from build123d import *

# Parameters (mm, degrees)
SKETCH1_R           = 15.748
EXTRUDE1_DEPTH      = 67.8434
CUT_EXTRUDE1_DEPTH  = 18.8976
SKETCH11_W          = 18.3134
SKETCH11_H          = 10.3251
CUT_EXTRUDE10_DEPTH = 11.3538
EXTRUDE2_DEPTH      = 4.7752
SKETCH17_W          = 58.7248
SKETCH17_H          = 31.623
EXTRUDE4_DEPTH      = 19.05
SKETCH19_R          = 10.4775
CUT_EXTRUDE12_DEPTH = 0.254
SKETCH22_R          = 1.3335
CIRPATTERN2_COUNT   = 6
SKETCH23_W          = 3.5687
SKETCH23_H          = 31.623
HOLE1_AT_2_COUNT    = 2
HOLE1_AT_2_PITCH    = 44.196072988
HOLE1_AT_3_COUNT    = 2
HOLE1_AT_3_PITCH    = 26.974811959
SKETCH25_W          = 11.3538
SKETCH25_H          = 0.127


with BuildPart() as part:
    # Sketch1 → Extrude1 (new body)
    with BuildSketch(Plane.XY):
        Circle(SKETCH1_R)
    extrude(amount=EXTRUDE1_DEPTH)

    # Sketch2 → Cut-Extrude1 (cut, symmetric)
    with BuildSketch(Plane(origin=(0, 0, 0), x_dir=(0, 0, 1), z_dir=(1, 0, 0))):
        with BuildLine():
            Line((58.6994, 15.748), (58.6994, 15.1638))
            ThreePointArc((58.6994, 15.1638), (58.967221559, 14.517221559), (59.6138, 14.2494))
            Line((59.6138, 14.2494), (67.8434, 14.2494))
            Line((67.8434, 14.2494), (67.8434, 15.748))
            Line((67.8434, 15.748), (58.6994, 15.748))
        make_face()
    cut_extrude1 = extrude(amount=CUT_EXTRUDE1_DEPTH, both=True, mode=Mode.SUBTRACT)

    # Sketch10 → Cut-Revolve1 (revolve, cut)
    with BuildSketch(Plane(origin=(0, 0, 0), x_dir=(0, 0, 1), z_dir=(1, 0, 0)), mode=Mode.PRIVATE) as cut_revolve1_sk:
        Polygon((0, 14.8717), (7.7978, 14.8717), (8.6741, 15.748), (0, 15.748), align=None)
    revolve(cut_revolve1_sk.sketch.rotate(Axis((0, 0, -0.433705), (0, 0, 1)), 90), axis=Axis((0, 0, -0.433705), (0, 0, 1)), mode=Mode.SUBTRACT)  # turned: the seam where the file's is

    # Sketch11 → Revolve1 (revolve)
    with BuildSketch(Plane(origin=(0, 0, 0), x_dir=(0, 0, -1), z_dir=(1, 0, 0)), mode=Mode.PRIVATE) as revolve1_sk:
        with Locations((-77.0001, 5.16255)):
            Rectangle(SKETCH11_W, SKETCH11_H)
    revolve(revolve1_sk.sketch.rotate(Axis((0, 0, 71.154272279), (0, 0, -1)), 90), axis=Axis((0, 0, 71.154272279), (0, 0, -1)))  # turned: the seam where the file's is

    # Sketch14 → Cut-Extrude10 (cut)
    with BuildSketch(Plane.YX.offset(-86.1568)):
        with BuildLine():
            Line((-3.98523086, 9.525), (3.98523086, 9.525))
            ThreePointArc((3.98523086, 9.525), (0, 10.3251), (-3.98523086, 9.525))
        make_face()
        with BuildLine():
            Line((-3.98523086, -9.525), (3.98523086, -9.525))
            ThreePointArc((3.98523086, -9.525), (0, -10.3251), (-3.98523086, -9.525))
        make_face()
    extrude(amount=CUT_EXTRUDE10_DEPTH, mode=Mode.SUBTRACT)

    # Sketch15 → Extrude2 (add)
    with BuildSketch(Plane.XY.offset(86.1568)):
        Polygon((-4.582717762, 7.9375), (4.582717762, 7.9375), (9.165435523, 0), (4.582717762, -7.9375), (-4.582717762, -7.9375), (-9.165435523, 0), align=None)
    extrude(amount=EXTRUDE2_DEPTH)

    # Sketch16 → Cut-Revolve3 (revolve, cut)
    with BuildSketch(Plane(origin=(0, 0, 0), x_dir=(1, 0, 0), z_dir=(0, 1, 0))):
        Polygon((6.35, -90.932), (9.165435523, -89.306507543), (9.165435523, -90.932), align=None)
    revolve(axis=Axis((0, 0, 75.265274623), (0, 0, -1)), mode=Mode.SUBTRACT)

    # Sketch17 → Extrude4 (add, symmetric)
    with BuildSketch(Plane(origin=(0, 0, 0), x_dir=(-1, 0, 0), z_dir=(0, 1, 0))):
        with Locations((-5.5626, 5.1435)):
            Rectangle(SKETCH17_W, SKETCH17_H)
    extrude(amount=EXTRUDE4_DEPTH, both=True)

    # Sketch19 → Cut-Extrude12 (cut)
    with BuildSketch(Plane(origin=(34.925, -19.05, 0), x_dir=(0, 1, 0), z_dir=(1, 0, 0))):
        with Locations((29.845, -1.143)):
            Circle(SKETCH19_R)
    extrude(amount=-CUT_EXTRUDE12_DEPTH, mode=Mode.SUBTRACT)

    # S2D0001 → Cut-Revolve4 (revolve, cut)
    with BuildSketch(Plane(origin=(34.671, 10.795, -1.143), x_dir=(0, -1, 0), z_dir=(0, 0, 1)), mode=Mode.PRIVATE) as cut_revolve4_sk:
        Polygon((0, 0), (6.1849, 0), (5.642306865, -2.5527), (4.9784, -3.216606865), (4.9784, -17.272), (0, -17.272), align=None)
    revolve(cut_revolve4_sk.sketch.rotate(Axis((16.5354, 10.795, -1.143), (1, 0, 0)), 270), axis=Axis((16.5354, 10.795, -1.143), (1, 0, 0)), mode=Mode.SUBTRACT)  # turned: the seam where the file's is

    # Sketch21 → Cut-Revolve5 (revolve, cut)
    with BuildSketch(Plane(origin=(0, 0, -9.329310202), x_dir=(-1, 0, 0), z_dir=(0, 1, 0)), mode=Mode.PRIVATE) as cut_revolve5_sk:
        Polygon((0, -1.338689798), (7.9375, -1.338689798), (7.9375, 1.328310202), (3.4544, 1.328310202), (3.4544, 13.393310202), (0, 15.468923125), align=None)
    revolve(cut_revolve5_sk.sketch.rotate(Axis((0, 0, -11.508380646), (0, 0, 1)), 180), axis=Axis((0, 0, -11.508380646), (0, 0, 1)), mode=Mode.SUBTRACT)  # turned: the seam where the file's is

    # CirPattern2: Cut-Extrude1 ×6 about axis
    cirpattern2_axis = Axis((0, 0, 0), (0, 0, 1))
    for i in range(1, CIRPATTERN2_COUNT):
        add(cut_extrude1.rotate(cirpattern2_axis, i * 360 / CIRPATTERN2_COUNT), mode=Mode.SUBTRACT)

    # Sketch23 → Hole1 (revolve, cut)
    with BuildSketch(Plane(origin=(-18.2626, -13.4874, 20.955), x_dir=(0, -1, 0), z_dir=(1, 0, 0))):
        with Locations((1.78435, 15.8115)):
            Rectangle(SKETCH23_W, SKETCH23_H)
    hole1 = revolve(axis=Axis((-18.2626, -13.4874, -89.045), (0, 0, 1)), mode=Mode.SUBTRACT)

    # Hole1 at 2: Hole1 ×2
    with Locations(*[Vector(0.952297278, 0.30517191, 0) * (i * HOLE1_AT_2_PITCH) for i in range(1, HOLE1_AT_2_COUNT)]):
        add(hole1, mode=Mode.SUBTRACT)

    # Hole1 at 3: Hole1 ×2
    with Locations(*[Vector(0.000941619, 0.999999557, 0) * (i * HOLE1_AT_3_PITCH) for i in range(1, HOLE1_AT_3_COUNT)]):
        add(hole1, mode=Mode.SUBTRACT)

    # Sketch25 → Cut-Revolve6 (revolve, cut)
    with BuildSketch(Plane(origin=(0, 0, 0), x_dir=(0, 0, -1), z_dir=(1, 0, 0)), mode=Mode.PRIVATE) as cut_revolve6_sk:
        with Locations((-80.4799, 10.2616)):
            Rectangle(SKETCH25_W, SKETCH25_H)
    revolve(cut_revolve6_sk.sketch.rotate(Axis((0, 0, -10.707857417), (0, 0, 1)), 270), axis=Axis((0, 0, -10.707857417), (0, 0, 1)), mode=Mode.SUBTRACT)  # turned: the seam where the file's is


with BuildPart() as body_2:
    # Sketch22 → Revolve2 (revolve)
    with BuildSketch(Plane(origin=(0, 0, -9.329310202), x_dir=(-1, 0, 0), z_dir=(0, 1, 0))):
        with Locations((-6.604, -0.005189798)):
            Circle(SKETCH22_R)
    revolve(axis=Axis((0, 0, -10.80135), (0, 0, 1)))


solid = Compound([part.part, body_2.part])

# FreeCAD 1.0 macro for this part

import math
import FreeCAD as App
import Part
import Sketcher

V = App.Vector
Q = App.Units.Quantity

doc = App.newDocument("Part")
body = doc.addObject("PartDesign::Body", "Body")

sketch1 = body.newObject("Sketcher::SketchObject", "Sketch")
sketch1.AttachmentSupport = (doc.getObject("XY_Plane"), [""])
sketch1.MapMode = "FlatFace"
sketch1.addGeometry(Part.Circle(V(0, 0, 0), V(0, 0, 1), 16), False)
sketch1.addConstraint(Sketcher.Constraint("Coincident", 0, 3, -1, 1))
sketch1.addConstraint(Sketcher.Constraint("Diameter", 0, Q("1.24 in")))
pad1 = body.newObject("PartDesign::Pad", "Pad")
pad1.Profile = sketch1
pad1.Length = Q("2.671 in")

sketch2 = body.newObject("Sketcher::SketchObject", "Sketch001")
sketch2.AttachmentSupport = (doc.getObject("YZ_Plane"), [""])
sketch2.MapMode = "FlatFace"
sketch2.addGeometry(Part.LineSegment(V(-15.7, 58.7, 0), V(-15.2, 58.7, 0)), False)
sketch2.addGeometry(Part.ArcOfCircle(Part.Circle(V(-15.2, 59.6, 0), V(0, 0, 1), 0.9), math.radians(-90), math.radians(0)), False)
sketch2.addGeometry(Part.LineSegment(V(-14.2, 59.6, 0), V(-14.2, 67.8, 0)), False)
sketch2.addGeometry(Part.LineSegment(V(-14.2, 67.8, 0), V(-15.7, 67.8, 0)), False)
sketch2.addGeometry(Part.LineSegment(V(-15.7, 67.8, 0), V(-15.7, 58.7, 0)), False)
sketch2.addConstraint(Sketcher.Constraint("Tangent", 0, 2, 1, 1))
sketch2.addConstraint(Sketcher.Constraint("Tangent", 1, 2, 2, 1))
sketch2.addConstraint(Sketcher.Constraint("Coincident", 2, 2, 3, 1))
sketch2.addConstraint(Sketcher.Constraint("Coincident", 3, 2, 4, 1))
sketch2.addConstraint(Sketcher.Constraint("Coincident", 4, 2, 0, 1))
sketch2.addConstraint(Sketcher.Constraint("Horizontal", 0))
sketch2.addConstraint(Sketcher.Constraint("Vertical", 2))
sketch2.addConstraint(Sketcher.Constraint("Horizontal", 3))
sketch2.addConstraint(Sketcher.Constraint("Vertical", 4))
sketch2.addConstraint(Sketcher.Constraint("Radius", 1, Q("0.036 in")))
sketch2.addConstraint(Sketcher.Constraint("DistanceY", 4, 2, 4, 1, Q("0.36 in")))
sketch2.addConstraint(Sketcher.Constraint("DistanceX", 0, 1, 0, 2, Q("0.023 in")))
sketch2.addConstraint(Sketcher.Constraint("DistanceX", 3, 2, -1, 1, Q("0.62 in")))
sketch2.addConstraint(Sketcher.Constraint("DistanceY", -1, 1, 1, 3, Q("2.347 in")))
pocket1 = body.newObject("PartDesign::Pocket", "Pocket")
pocket1.Profile = sketch2
pocket1.Length = Q("1.488 in")
pocket1.Midplane = True

sketch3 = body.newObject("Sketcher::SketchObject", "Sketch002")
sketch3.AttachmentSupport = (doc.getObject("YZ_Plane"), [""])
sketch3.MapMode = "FlatFace"
sketch3.addGeometry(Part.LineSegment(V(-14.9, 0, 0), V(-14.9, 7.8, 0)), False)
sketch3.addGeometry(Part.LineSegment(V(-14.9, 7.8, 0), V(-15.7, 8.7, 0)), False)
sketch3.addGeometry(Part.LineSegment(V(-15.7, 8.7, 0), V(-15.7, 0, 0)), False)
sketch3.addGeometry(Part.LineSegment(V(-15.7, 0, 0), V(-14.9, 0, 0)), False)
sketch3.addConstraint(Sketcher.Constraint("Coincident", 0, 2, 1, 1))
sketch3.addConstraint(Sketcher.Constraint("Coincident", 1, 2, 2, 1))
sketch3.addConstraint(Sketcher.Constraint("Coincident", 2, 2, 3, 1))
sketch3.addConstraint(Sketcher.Constraint("Coincident", 3, 2, 0, 1))
sketch3.addConstraint(Sketcher.Constraint("Vertical", 0))
sketch3.addConstraint(Sketcher.Constraint("Vertical", 2))
sketch3.addConstraint(Sketcher.Constraint("Horizontal", 3))
sketch3.addConstraint(Sketcher.Constraint("PointOnObject", 2, 2, -1))
sketch3.addConstraint(Sketcher.Constraint("Angle", 1, Q("135 deg")))
sketch3.addConstraint(Sketcher.Constraint("DistanceY", 0, 1, 0, 2, Q("0.307 in")))
sketch3.addConstraint(Sketcher.Constraint("DistanceX", 1, 2, -1, 1, Q("0.62 in")))
sketch3.addConstraint(Sketcher.Constraint("DistanceX", 3, 1, 3, 2, Q("0.0345 in")))
groove = body.newObject("PartDesign::Groove", "Groove")
groove.Profile = sketch3
groove.ReferenceAxis = (sketch3, ["V_Axis"])
groove.Angle = 360

sketch4 = body.newObject("Sketcher::SketchObject", "Sketch003")
sketch4.AttachmentSupport = (doc.getObject("YZ_Plane"), [""])
sketch4.MapMode = "FlatFace"
sketch4.addGeometry(Part.LineSegment(V(10, 86, 0), V(0, 86, 0)), False)
sketch4.addGeometry(Part.LineSegment(V(0, 86, 0), V(0, 68, 0)), False)
sketch4.addGeometry(Part.LineSegment(V(0, 68, 0), V(10, 68, 0)), False)
sketch4.addGeometry(Part.LineSegment(V(10, 68, 0), V(10, 86, 0)), False)
sketch4.addConstraint(Sketcher.Constraint("Coincident", 0, 2, 1, 1))
sketch4.addConstraint(Sketcher.Constraint("Coincident", 1, 2, 2, 1))
sketch4.addConstraint(Sketcher.Constraint("Coincident", 2, 2, 3, 1))
sketch4.addConstraint(Sketcher.Constraint("Coincident", 3, 2, 0, 1))
sketch4.addConstraint(Sketcher.Constraint("Horizontal", 0))
sketch4.addConstraint(Sketcher.Constraint("Vertical", 1))
sketch4.addConstraint(Sketcher.Constraint("Horizontal", 2))
sketch4.addConstraint(Sketcher.Constraint("Vertical", 3))
sketch4.addConstraint(Sketcher.Constraint("PointOnObject", 0, 2, -2))
sketch4.addConstraint(Sketcher.Constraint("DistanceY", 1, 2, 1, 1, Q("0.721 in")))
sketch4.addConstraint(Sketcher.Constraint("DistanceX", 0, 2, 0, 1, Q("0.4065 in")))
sketch4.addConstraint(Sketcher.Constraint("DistanceY", -1, 1, 0, 2, Q("3.392 in")))
revolution = body.newObject("PartDesign::Revolution", "Revolution")
revolution.Profile = sketch4
revolution.ReferenceAxis = (sketch4, ["V_Axis"])
revolution.Angle = 360

sketch5 = body.newObject("Sketcher::SketchObject", "Sketch004")
sketch5.AttachmentSupport = (doc.getObject("XY_Plane"), [""])
sketch5.MapMode = "FlatFace"
sketch5.AttachmentOffset = App.Placement(V(0, 0, 3.392 * 25.4), App.Rotation())
sketch5.addGeometry(Part.LineSegment(V(10, -4, 0), V(10, 4, 0)), False)
sketch5.addGeometry(Part.ArcOfCircle(Part.Circle(V(0, 0, 0), V(0, 0, 1), 10), math.radians(-23), math.radians(23)), False)
sketch5.addGeometry(Part.LineSegment(V(-10, 4, 0), V(-10, -4, 0)), False)
sketch5.addGeometry(Part.ArcOfCircle(Part.Circle(V(0, 0, 0), V(0, 0, 1), 10), math.radians(157), math.radians(203)), False)
sketch5.addConstraint(Sketcher.Constraint("Coincident", 0, 1, 1, 1))
sketch5.addConstraint(Sketcher.Constraint("Coincident", 1, 2, 0, 2))
sketch5.addConstraint(Sketcher.Constraint("Coincident", 2, 1, 3, 1))
sketch5.addConstraint(Sketcher.Constraint("Coincident", 3, 2, 2, 2))
sketch5.addConstraint(Sketcher.Constraint("Vertical", 0))
sketch5.addConstraint(Sketcher.Constraint("Vertical", 2))
sketch5.addConstraint(Sketcher.Constraint("Coincident", 1, 3, -1, 1))
sketch5.addConstraint(Sketcher.Constraint("Coincident", 3, 3, -1, 1))
sketch5.addConstraint(Sketcher.Constraint("Equal", 1, 3))
sketch5.addConstraint(Sketcher.Constraint("Horizontal", 1, 2, 2, 1))
sketch5.addConstraint(Sketcher.Constraint("Radius", 1, Q("0.4065 in")))
sketch5.addConstraint(Sketcher.Constraint("DistanceX", 2, 1, 1, 2, Q("0.75 in")))
pocket2 = body.newObject("PartDesign::Pocket", "Pocket001")
pocket2.Profile = sketch5
pocket2.Length = Q("0.447 in")

sketch6 = body.newObject("Sketcher::SketchObject", "Sketch005")
sketch6.AttachmentSupport = (doc.getObject("XY_Plane"), [""])
sketch6.MapMode = "FlatFace"
sketch6.AttachmentOffset = App.Placement(V(0, 0, 3.392 * 25.4), App.Rotation())
sketch6.addGeometry(Part.LineSegment(V(5, 8, 0), V(-5, 8, 0)), False)
sketch6.addGeometry(Part.LineSegment(V(-5, 8, 0), V(-9, 0, 0)), False)
sketch6.addGeometry(Part.LineSegment(V(-9, 0, 0), V(-5, -8, 0)), False)
sketch6.addGeometry(Part.LineSegment(V(-5, -8, 0), V(5, -8, 0)), False)
sketch6.addGeometry(Part.LineSegment(V(5, -8, 0), V(9, 0, 0)), False)
sketch6.addGeometry(Part.LineSegment(V(9, 0, 0), V(5, 8, 0)), False)
sketch6.addConstraint(Sketcher.Constraint("Coincident", 0, 2, 1, 1))
sketch6.addConstraint(Sketcher.Constraint("Coincident", 1, 2, 2, 1))
sketch6.addConstraint(Sketcher.Constraint("Coincident", 2, 2, 3, 1))
sketch6.addConstraint(Sketcher.Constraint("Coincident", 3, 2, 4, 1))
sketch6.addConstraint(Sketcher.Constraint("Coincident", 4, 2, 5, 1))
sketch6.addConstraint(Sketcher.Constraint("Coincident", 5, 2, 0, 1))
sketch6.addConstraint(Sketcher.Constraint("Horizontal", 0))
sketch6.addConstraint(Sketcher.Constraint("Horizontal", 3))
sketch6.addConstraint(Sketcher.Constraint("Symmetric", 0, 2, 3, 2, -1, 1))
sketch6.addConstraint(Sketcher.Constraint("Symmetric", 1, 2, 4, 2, -1, 1))
sketch6.addConstraint(Sketcher.Constraint("PointOnObject", 1, 2, -1))
sketch6.addConstraint(Sketcher.Constraint("Parallel", 2, 5))
sketch6.addConstraint(Sketcher.Constraint("Vertical", 0, 2, 2, 2))
sketch6.addConstraint(Sketcher.Constraint("Angle", 1, Q("-120 deg")))
sketch6.addConstraint(Sketcher.Constraint("DistanceY", -1, 1, 0, 2, Q("0.3125 in")))
sketch6.addConstraint(Sketcher.Constraint("DistanceX", 0, 2, 0, 1, 9.165436))
pad2 = body.newObject("PartDesign::Pad", "Pad001")
pad2.Profile = sketch6
pad2.Length = Q("0.188 in")

sketch7 = body.newObject("Sketcher::SketchObject", "Sketch006")
sketch7.AttachmentSupport = (doc.getObject("XZ_Plane"), [""])
sketch7.MapMode = "FlatFace"
sketch7.addGeometry(Part.LineSegment(V(9.2, 89.3, 0), V(6.3, 90.9, 0)), False)
sketch7.addGeometry(Part.LineSegment(V(6.3, 90.9, 0), V(9.2, 90.9, 0)), False)
sketch7.addGeometry(Part.LineSegment(V(9.2, 90.9, 0), V(9.2, 89.3, 0)), False)
sketch7.addConstraint(Sketcher.Constraint("Coincident", 0, 2, 1, 1))
sketch7.addConstraint(Sketcher.Constraint("Coincident", 1, 2, 2, 1))
sketch7.addConstraint(Sketcher.Constraint("Coincident", 2, 2, 0, 1))
sketch7.addConstraint(Sketcher.Constraint("Horizontal", 1))
sketch7.addConstraint(Sketcher.Constraint("Vertical", 2))
sketch7.addConstraint(Sketcher.Constraint("Angle", 0, Q("150 deg")))
sketch7.addConstraint(Sketcher.Constraint("DistanceX", -1, 1, 0, 2, Q("0.25 in")))
sketch7.addConstraint(Sketcher.Constraint("DistanceY", -1, 1, 0, 2, Q("3.58 in")))
sketch7.addConstraint(Sketcher.Constraint("DistanceX", 1, 1, 1, 2, 2.815436))
groove2 = body.newObject("PartDesign::Groove", "Groove001")
groove2.Profile = sketch7
groove2.ReferenceAxis = (sketch7, ["V_Axis"])
groove2.Angle = 360

sketch8 = body.newObject("Sketcher::SketchObject", "Sketch007")
sketch8.AttachmentSupport = (doc.getObject("XZ_Plane"), [""])
sketch8.MapMode = "FlatFace"
sketch8.addGeometry(Part.LineSegment(V(35, 21, 0), V(35, -11, 0)), False)
sketch8.addGeometry(Part.LineSegment(V(35, -11, 0), V(-24, -11, 0)), False)
sketch8.addGeometry(Part.LineSegment(V(-24, -11, 0), V(-24, 21, 0)), False)
sketch8.addGeometry(Part.LineSegment(V(-24, 21, 0), V(35, 21, 0)), False)
sketch8.addConstraint(Sketcher.Constraint("Coincident", 0, 2, 1, 1))
sketch8.addConstraint(Sketcher.Constraint("Coincident", 1, 2, 2, 1))
sketch8.addConstraint(Sketcher.Constraint("Coincident", 2, 2, 3, 1))
sketch8.addConstraint(Sketcher.Constraint("Coincident", 3, 2, 0, 1))
sketch8.addConstraint(Sketcher.Constraint("Vertical", 0))
sketch8.addConstraint(Sketcher.Constraint("Horizontal", 1))
sketch8.addConstraint(Sketcher.Constraint("Vertical", 2))
sketch8.addConstraint(Sketcher.Constraint("Horizontal", 3))
sketch8.addConstraint(Sketcher.Constraint("DistanceX", 1, 2, 1, 1, Q("2.312 in")))
sketch8.addConstraint(Sketcher.Constraint("DistanceY", 0, 2, 0, 1, Q("1.245 in")))
sketch8.addConstraint(Sketcher.Constraint("DistanceY", 0, 2, -1, 1, Q("0.42 in")))
sketch8.addConstraint(Sketcher.Constraint("DistanceX", -1, 1, 0, 2, Q("1.375 in")))
pad3 = body.newObject("PartDesign::Pad", "Pad002")
pad3.Profile = sketch8
pad3.Length = Q("1.5 in")
pad3.Midplane = True

sketch9 = body.newObject("Sketcher::SketchObject", "Sketch008")
sketch9.AttachmentSupport = (doc.getObject("YZ_Plane"), [""])
sketch9.MapMode = "FlatFace"
sketch9.AttachmentOffset = App.Placement(V(0, 0, 1.375 * 25.4), App.Rotation())
sketch9.addGeometry(Part.Circle(V(11, -1, 0), V(0, 0, 1), 10), False)
sketch9.addConstraint(Sketcher.Constraint("Diameter", 0, Q("0.825 in")))
sketch9.addConstraint(Sketcher.Constraint("DistanceX", -1, 1, 0, 3, Q("0.425 in")))
sketch9.addConstraint(Sketcher.Constraint("DistanceY", 0, 3, -1, 1, Q("0.045 in")))
pocket3 = body.newObject("PartDesign::Pocket", "Pocket002")
pocket3.Profile = sketch9
pocket3.Length = Q("0.01 in")

sketch10 = body.newObject("Sketcher::SketchObject", "Sketch009")
sketch10.AttachmentSupport = (doc.getObject("XY_Plane"), [""])
sketch10.MapMode = "FlatFace"
sketch10.AttachmentOffset = App.Placement(V(0, 0, -0.045 * 25.4), App.Rotation())
sketch10.addGeometry(Part.LineSegment(V(34.7, 4.6, 0), V(34.7, 10.8, 0)), False)
sketch10.addGeometry(Part.LineSegment(V(34.7, 10.8, 0), V(17.4, 10.8, 0)), False)
sketch10.addGeometry(Part.LineSegment(V(17.4, 10.8, 0), V(17.4, 5.8, 0)), False)
sketch10.addGeometry(Part.LineSegment(V(17.4, 5.8, 0), V(31.5, 5.8, 0)), False)
sketch10.addGeometry(Part.LineSegment(V(31.5, 5.8, 0), V(32.1, 5.2, 0)), False)
sketch10.addGeometry(Part.LineSegment(V(32.1, 5.2, 0), V(34.7, 4.6, 0)), False)
sketch10.addGeometry(Part.LineSegment(V(17.4, 10.8, 0), V(34.7, 10.8, 0)), True)
sketch10.addConstraint(Sketcher.Constraint("Coincident", 0, 2, 1, 1))
sketch10.addConstraint(Sketcher.Constraint("Coincident", 1, 2, 2, 1))
sketch10.addConstraint(Sketcher.Constraint("Coincident", 2, 2, 3, 1))
sketch10.addConstraint(Sketcher.Constraint("Coincident", 3, 2, 4, 1))
sketch10.addConstraint(Sketcher.Constraint("Coincident", 4, 2, 5, 1))
sketch10.addConstraint(Sketcher.Constraint("Coincident", 5, 2, 0, 1))
sketch10.addConstraint(Sketcher.Constraint("Vertical", 0))
sketch10.addConstraint(Sketcher.Constraint("Horizontal", 1))
sketch10.addConstraint(Sketcher.Constraint("Vertical", 2))
sketch10.addConstraint(Sketcher.Constraint("Horizontal", 3))
sketch10.addConstraint(Sketcher.Constraint("Horizontal", 6))
sketch10.addConstraint(Sketcher.Constraint("Coincident", 6, 1, 1, 2))
sketch10.addConstraint(Sketcher.Constraint("Vertical", 5, 2, 6, 2))
sketch10.addConstraint(Sketcher.Constraint("Angle", 4, Q("-45 deg")))
sketch10.addConstraint(Sketcher.Constraint("Angle", 5, Q("-12 deg")))
sketch10.addConstraint(Sketcher.Constraint("DistanceX", 1, 2, 1, 1, Q("0.68 in")))
sketch10.addConstraint(Sketcher.Constraint("DistanceY", 2, 2, 2, 1, Q("0.196 in")))
sketch10.addConstraint(Sketcher.Constraint("DistanceY", 0, 1, 0, 2, Q("0.2435 in")))
sketch10.addConstraint(Sketcher.Constraint("DistanceX", -1, 1, 0, 2, Q("1.365 in")))
sketch10.addConstraint(Sketcher.Constraint("DistanceY", -1, 1, 0, 2, Q("0.425 in")))
sketch10.addConstraint(Sketcher.Constraint("DistanceX", -1, 1, 4, 2, Q("1.2645 in")))
groove3 = body.newObject("PartDesign::Groove", "Groove002")
groove3.Profile = sketch10
groove3.ReferenceAxis = (sketch10, ["Axis0"])
groove3.Angle = 360

sketch11 = body.newObject("Sketcher::SketchObject", "Sketch010")
sketch11.AttachmentSupport = (doc.getObject("XZ_Plane"), [""])
sketch11.MapMode = "FlatFace"
sketch11.addGeometry(Part.LineSegment(V(0, -10.7, 0), V(-7.9, -10.7, 0)), False)
sketch11.addGeometry(Part.LineSegment(V(-7.9, -10.7, 0), V(-7.9, -8, 0)), False)
sketch11.addGeometry(Part.LineSegment(V(-7.9, -8, 0), V(-3.5, -8, 0)), False)
sketch11.addGeometry(Part.LineSegment(V(-3.5, -8, 0), V(-3.5, 4.1, 0)), False)
sketch11.addGeometry(Part.LineSegment(V(-3.5, 4.1, 0), V(0, 6.1, 0)), False)
sketch11.addGeometry(Part.LineSegment(V(0, 6.1, 0), V(0, -10.7, 0)), False)
sketch11.addConstraint(Sketcher.Constraint("Coincident", 0, 2, 1, 1))
sketch11.addConstraint(Sketcher.Constraint("Coincident", 1, 2, 2, 1))
sketch11.addConstraint(Sketcher.Constraint("Coincident", 2, 2, 3, 1))
sketch11.addConstraint(Sketcher.Constraint("Coincident", 3, 2, 4, 1))
sketch11.addConstraint(Sketcher.Constraint("Coincident", 4, 2, 5, 1))
sketch11.addConstraint(Sketcher.Constraint("Coincident", 5, 2, 0, 1))
sketch11.addConstraint(Sketcher.Constraint("Horizontal", 0))
sketch11.addConstraint(Sketcher.Constraint("Vertical", 1))
sketch11.addConstraint(Sketcher.Constraint("Horizontal", 2))
sketch11.addConstraint(Sketcher.Constraint("Vertical", 3))
sketch11.addConstraint(Sketcher.Constraint("Vertical", 5))
sketch11.addConstraint(Sketcher.Constraint("PointOnObject", 4, 2, -2))
sketch11.addConstraint(Sketcher.Constraint("Angle", 4, Q("31 deg")))
sketch11.addConstraint(Sketcher.Constraint("DistanceX", 0, 2, 0, 1, Q("0.3125 in")))
sketch11.addConstraint(Sketcher.Constraint("DistanceY", 1, 1, 1, 2, Q("0.105 in")))
sketch11.addConstraint(Sketcher.Constraint("DistanceY", 3, 1, 3, 2, Q("0.475 in")))
sketch11.addConstraint(Sketcher.Constraint("DistanceY", 0, 2, -1, 1, Q("0.42 in")))
sketch11.addConstraint(Sketcher.Constraint("DistanceX", 2, 1, 2, 2, Q("0.1765 in")))
groove4 = body.newObject("PartDesign::Groove", "Groove003")
groove4.Profile = sketch11
groove4.ReferenceAxis = (sketch11, ["V_Axis"])
groove4.Angle = 360
doc.recompute()

polarpattern = body.newObject("PartDesign::PolarPattern", "PolarPattern")
polarpattern.Originals = [pocket1]
polarpattern.Axis = (doc.getObject("Z_Axis"), [""])
polarpattern.Angle = 360
polarpattern.Occurrences = 6
body.Tip = polarpattern

sketch12 = body.newObject("Sketcher::SketchObject", "Sketch011")
sketch12.AttachmentSupport = (doc.getObject("YZ_Plane"), [""])
sketch12.MapMode = "FlatFace"
sketch12.AttachmentOffset = App.Placement(V(0, 0, -0.719 * 25.4), App.Rotation())
sketch12.addGeometry(Part.LineSegment(V(-13.5, -10.7, 0), V(-13.5, 21, 0)), False)
sketch12.addGeometry(Part.LineSegment(V(-13.5, 21, 0), V(-17.1, 21, 0)), False)
sketch12.addGeometry(Part.LineSegment(V(-17.1, 21, 0), V(-17.1, -10.7, 0)), False)
sketch12.addGeometry(Part.LineSegment(V(-17.1, -10.7, 0), V(-13.5, -10.7, 0)), False)
sketch12.addGeometry(Part.LineSegment(V(-13.5, -10.7, 0), V(-13.5, 21, 0)), True)
sketch12.addConstraint(Sketcher.Constraint("Coincident", 0, 2, 1, 1))
sketch12.addConstraint(Sketcher.Constraint("Coincident", 1, 2, 2, 1))
sketch12.addConstraint(Sketcher.Constraint("Coincident", 2, 2, 3, 1))
sketch12.addConstraint(Sketcher.Constraint("Coincident", 3, 2, 0, 1))
sketch12.addConstraint(Sketcher.Constraint("Vertical", 0))
sketch12.addConstraint(Sketcher.Constraint("Horizontal", 1))
sketch12.addConstraint(Sketcher.Constraint("Vertical", 2))
sketch12.addConstraint(Sketcher.Constraint("Horizontal", 3))
sketch12.addConstraint(Sketcher.Constraint("Vertical", 4))
sketch12.addConstraint(Sketcher.Constraint("Coincident", 4, 1, 3, 2))
sketch12.addConstraint(Sketcher.Constraint("Horizontal", 1, 2, 4, 2))
sketch12.addConstraint(Sketcher.Constraint("DistanceY", 0, 1, 0, 2, Q("1.245 in")))
sketch12.addConstraint(Sketcher.Constraint("DistanceY", 2, 2, -1, 1, Q("0.42 in")))
sketch12.addConstraint(Sketcher.Constraint("DistanceX", 1, 2, 1, 1, Q("0.1405 in")))
sketch12.addConstraint(Sketcher.Constraint("DistanceX", 0, 2, -1, 1, Q("0.531 in")))
groove5 = body.newObject("PartDesign::Groove", "Groove004")
groove5.Profile = sketch12
groove5.ReferenceAxis = (sketch12, ["Axis0"])
groove5.Angle = 360
doc.recompute()

datumline = body.newObject("PartDesign::Line", "DatumLine")
datumline.Placement = App.Placement(V(0, 0, 0), App.Rotation(V(0, 0, 1), V(0.952297278, 0.30517191, 0)))
linearpattern = body.newObject("PartDesign::LinearPattern", "LinearPattern")
linearpattern.Originals = [groove5]
linearpattern.Direction = (datumline, [""])
linearpattern.Mode = "offset"
linearpattern.Offset = 44.196073
linearpattern.Occurrences = 2
body.Tip = linearpattern
doc.recompute()

datumline2 = body.newObject("PartDesign::Line", "DatumLine001")
datumline2.Placement = App.Placement(V(0, 0, 0), App.Rotation(V(0, 0, 1), V(0.000941619, 0.999999557, 0)))
linearpattern2 = body.newObject("PartDesign::LinearPattern", "LinearPattern001")
linearpattern2.Originals = [groove5]
linearpattern2.Direction = (datumline2, [""])
linearpattern2.Mode = "offset"
linearpattern2.Offset = 26.974812
linearpattern2.Occurrences = 2
body.Tip = linearpattern2

sketch13 = body.newObject("Sketcher::SketchObject", "Sketch012")
sketch13.AttachmentSupport = (doc.getObject("YZ_Plane"), [""])
sketch13.MapMode = "FlatFace"
sketch13.addGeometry(Part.LineSegment(V(10.33, 86.16, 0), V(10.2, 86.16, 0)), False)
sketch13.addGeometry(Part.LineSegment(V(10.2, 86.16, 0), V(10.2, 74.8, 0)), False)
sketch13.addGeometry(Part.LineSegment(V(10.2, 74.8, 0), V(10.33, 74.8, 0)), False)
sketch13.addGeometry(Part.LineSegment(V(10.33, 74.8, 0), V(10.33, 86.16, 0)), False)
sketch13.addConstraint(Sketcher.Constraint("Coincident", 0, 2, 1, 1))
sketch13.addConstraint(Sketcher.Constraint("Coincident", 1, 2, 2, 1))
sketch13.addConstraint(Sketcher.Constraint("Coincident", 2, 2, 3, 1))
sketch13.addConstraint(Sketcher.Constraint("Coincident", 3, 2, 0, 1))
sketch13.addConstraint(Sketcher.Constraint("Horizontal", 0))
sketch13.addConstraint(Sketcher.Constraint("Vertical", 1))
sketch13.addConstraint(Sketcher.Constraint("Horizontal", 2))
sketch13.addConstraint(Sketcher.Constraint("Vertical", 3))
sketch13.addConstraint(Sketcher.Constraint("DistanceX", 0, 2, 0, 1, Q("0.005 in")))
sketch13.addConstraint(Sketcher.Constraint("DistanceY", 1, 2, 1, 1, Q("0.447 in")))
sketch13.addConstraint(Sketcher.Constraint("DistanceY", -1, 1, 0, 2, Q("3.392 in")))
sketch13.addConstraint(Sketcher.Constraint("DistanceX", -1, 1, 0, 2, Q("0.4015 in")))
groove6 = body.newObject("PartDesign::Groove", "Groove005")
groove6.Profile = sketch13
groove6.ReferenceAxis = (sketch13, ["V_Axis"])
groove6.Angle = 360
body2 = doc.addObject("PartDesign::Body", "Body001")

sketch14 = body2.newObject("Sketcher::SketchObject", "Sketch013")
sketch14.AttachmentSupport = (doc.getObject("XZ_Plane001"), [""])
sketch14.MapMode = "FlatFace"
sketch14.addGeometry(Part.Circle(V(6.6, -9.3, 0), V(0, 0, 1), 1.3), False)
sketch14.addConstraint(Sketcher.Constraint("Diameter", 0, Q("0.105 in")))
sketch14.addConstraint(Sketcher.Constraint("DistanceX", -1, 1, 0, 3, Q("0.26 in")))
sketch14.addConstraint(Sketcher.Constraint("DistanceY", 0, 3, -1, 1, Q("0.3675 in")))
revolution2 = body2.newObject("PartDesign::Revolution", "Revolution001")
revolution2.Profile = sketch14
revolution2.ReferenceAxis = (sketch14, ["V_Axis"])
revolution2.Angle = 360

doc.recompute()
